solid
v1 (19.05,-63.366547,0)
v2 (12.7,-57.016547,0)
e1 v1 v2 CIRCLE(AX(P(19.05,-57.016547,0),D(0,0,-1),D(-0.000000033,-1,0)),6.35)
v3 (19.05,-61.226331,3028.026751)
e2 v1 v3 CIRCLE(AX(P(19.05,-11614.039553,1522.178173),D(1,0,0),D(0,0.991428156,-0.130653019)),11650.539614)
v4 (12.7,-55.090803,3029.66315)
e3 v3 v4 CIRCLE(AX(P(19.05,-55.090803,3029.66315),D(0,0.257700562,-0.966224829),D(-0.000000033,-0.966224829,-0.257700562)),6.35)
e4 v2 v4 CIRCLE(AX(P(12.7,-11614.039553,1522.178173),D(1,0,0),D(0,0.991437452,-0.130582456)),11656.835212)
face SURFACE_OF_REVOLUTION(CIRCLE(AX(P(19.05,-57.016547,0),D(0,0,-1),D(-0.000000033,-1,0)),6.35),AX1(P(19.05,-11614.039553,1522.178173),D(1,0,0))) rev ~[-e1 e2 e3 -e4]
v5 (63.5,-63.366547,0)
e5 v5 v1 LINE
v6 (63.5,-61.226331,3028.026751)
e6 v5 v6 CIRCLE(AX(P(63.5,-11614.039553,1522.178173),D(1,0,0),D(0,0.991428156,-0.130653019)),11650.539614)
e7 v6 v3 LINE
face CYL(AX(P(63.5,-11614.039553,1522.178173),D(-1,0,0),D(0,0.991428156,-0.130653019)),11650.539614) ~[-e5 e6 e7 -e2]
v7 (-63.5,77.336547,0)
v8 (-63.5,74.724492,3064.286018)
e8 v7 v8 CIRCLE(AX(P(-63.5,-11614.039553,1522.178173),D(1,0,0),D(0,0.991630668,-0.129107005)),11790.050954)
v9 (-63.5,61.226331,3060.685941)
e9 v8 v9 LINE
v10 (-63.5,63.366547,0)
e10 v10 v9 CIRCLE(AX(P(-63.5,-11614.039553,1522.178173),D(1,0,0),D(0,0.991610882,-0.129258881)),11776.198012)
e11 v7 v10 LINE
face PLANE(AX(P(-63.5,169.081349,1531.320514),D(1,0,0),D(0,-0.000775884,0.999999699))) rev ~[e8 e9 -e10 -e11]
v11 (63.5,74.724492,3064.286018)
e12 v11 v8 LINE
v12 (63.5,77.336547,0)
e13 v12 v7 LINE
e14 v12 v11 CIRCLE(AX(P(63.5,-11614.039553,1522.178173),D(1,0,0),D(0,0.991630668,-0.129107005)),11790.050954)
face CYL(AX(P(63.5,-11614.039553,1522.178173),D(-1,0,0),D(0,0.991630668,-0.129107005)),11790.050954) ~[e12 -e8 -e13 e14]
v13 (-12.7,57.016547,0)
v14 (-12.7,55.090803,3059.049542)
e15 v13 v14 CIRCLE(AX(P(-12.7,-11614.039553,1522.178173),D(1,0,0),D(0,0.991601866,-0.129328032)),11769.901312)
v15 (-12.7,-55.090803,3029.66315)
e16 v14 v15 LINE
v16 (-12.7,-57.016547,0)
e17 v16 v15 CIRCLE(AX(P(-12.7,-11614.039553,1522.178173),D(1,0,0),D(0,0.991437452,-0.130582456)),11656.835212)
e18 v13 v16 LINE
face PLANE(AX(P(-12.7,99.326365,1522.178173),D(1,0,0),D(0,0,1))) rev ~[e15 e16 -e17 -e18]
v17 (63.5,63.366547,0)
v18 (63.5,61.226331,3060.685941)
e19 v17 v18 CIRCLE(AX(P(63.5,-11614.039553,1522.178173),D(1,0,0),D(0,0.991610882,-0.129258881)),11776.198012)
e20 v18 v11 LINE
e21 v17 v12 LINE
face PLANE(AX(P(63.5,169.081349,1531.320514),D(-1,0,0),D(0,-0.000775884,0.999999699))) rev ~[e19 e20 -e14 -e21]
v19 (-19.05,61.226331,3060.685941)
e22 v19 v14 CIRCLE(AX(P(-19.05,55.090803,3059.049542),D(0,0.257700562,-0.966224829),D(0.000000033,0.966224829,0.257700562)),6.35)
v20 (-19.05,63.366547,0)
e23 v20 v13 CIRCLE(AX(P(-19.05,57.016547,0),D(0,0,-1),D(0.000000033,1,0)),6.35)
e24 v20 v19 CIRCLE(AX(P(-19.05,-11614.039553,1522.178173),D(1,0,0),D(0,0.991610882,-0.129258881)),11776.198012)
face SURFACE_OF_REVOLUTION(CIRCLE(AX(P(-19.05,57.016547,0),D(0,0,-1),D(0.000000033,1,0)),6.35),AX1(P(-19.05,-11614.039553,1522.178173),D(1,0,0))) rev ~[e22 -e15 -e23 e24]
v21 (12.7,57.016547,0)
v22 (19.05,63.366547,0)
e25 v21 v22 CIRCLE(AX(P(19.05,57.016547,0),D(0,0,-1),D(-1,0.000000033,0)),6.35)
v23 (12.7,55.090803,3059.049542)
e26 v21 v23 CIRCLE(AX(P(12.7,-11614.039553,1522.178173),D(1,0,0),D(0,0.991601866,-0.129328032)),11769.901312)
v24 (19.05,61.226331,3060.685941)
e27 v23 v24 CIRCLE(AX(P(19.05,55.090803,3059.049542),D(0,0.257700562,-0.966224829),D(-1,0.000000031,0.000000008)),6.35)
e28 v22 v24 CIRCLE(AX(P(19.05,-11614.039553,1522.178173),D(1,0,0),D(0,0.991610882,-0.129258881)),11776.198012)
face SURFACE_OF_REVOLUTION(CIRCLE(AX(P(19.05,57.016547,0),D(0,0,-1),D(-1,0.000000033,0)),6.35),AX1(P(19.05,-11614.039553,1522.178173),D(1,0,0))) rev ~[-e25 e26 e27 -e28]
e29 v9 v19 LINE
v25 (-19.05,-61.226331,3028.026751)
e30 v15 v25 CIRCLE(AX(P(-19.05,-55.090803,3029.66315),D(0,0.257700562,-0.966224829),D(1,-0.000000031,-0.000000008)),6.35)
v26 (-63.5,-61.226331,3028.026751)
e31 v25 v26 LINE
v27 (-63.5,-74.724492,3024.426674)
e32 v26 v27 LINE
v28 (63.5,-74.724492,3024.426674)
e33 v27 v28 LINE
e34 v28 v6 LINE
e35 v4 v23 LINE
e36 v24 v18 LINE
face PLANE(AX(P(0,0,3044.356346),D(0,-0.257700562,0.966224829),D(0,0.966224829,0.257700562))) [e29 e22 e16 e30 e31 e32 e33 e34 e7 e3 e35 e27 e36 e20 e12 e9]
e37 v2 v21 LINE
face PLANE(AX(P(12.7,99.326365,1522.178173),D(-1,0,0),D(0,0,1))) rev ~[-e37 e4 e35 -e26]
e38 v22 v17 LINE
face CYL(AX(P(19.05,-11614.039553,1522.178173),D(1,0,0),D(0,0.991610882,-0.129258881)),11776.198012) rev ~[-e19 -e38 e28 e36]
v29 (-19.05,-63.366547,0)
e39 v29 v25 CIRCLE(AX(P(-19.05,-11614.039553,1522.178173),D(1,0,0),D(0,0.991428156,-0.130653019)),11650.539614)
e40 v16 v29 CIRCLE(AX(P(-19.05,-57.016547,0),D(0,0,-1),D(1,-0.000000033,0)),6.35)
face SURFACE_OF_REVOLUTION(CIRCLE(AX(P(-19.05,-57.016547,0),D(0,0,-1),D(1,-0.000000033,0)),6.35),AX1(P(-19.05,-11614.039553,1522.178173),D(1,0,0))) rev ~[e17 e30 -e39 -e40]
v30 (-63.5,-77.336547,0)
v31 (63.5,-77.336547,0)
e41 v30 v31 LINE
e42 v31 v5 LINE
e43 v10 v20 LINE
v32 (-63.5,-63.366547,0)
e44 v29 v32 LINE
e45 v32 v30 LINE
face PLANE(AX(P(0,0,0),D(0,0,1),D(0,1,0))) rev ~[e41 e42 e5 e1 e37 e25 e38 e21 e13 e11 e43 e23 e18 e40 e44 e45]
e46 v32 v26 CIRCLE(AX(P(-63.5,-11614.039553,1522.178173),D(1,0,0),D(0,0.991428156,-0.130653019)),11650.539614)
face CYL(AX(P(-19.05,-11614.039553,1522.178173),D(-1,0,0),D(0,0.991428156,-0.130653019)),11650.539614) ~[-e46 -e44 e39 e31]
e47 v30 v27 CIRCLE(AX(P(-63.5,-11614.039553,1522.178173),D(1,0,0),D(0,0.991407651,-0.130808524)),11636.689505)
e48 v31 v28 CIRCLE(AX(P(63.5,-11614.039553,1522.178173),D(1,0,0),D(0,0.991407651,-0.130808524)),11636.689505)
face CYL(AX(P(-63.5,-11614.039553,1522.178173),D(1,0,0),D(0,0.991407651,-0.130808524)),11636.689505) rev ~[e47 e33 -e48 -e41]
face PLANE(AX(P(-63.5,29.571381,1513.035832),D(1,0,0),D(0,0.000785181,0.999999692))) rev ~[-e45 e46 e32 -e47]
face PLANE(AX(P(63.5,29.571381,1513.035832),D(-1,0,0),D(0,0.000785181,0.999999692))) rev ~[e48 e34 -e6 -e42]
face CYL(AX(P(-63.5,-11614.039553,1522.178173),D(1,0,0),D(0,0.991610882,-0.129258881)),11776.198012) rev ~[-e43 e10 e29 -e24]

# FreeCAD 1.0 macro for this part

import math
import FreeCAD as App
import Part
import Sketcher
from FreeCAD import Vector
Q = App.Units.Quantity

doc = App.newDocument("Part")
body = doc.addObject("PartDesign::Body", "Body")

sketch1 = body.newObject("Sketcher::SketchObject", "Sketch")
sketch1.AttachmentSupport = (doc.getObject("XY_Plane"), [""])
sketch1.MapMode = "FlatFace"
sketch1.addGeometry([
    Part.LineSegment(Vector(-13, 57, 0), Vector(-13, -57, 0)),
    Part.ArcOfCircle(Part.Circle(Vector(-19, -57, 0), Vector(0, 0, 1), 6), math.radians(-90), math.radians(0)),
    Part.LineSegment(Vector(-19, -63, 0), Vector(-64, -63, 0)),
    Part.LineSegment(Vector(-64, -63, 0), Vector(-64, -77, 0)),
    Part.LineSegment(Vector(-64, -77, 0), Vector(64, -77, 0)),
    Part.LineSegment(Vector(64, -77, 0), Vector(64, -63, 0)),
    Part.LineSegment(Vector(64, -63, 0), Vector(19, -63, 0)),
    Part.ArcOfCircle(Part.Circle(Vector(19, -57, 0), Vector(0, 0, 1), 6), math.radians(-180), math.radians(-90)),
    Part.LineSegment(Vector(13, -57, 0), Vector(13, 57, 0)),
    Part.ArcOfCircle(Part.Circle(Vector(19, 57, 0), Vector(0, 0, 1), 6), math.radians(90), math.radians(180)),
    Part.LineSegment(Vector(19, 63, 0), Vector(64, 63, 0)),
    Part.LineSegment(Vector(64, 63, 0), Vector(64, 77, 0)),
    Part.LineSegment(Vector(64, 77, 0), Vector(-64, 77, 0)),
    Part.LineSegment(Vector(-64, 77, 0), Vector(-64, 63, 0)),
    Part.LineSegment(Vector(-64, 63, 0), Vector(-19, 63, 0)),
    Part.ArcOfCircle(Part.Circle(Vector(-19, 57, 0), Vector(0, 0, 1), 6), math.radians(0), math.radians(90)),
], False)
sketch1.addConstraint([
    Sketcher.Constraint("Tangent", 0, 2, 1, 2),
    Sketcher.Constraint("Tangent", 1, 1, 2, 1),
    Sketcher.Constraint("Coincident", 2, 2, 3, 1),
    Sketcher.Constraint("Coincident", 3, 2, 4, 1),
    Sketcher.Constraint("Coincident", 4, 2, 5, 1),
    Sketcher.Constraint("Coincident", 5, 2, 6, 1),
    Sketcher.Constraint("Tangent", 6, 2, 7, 2),
    Sketcher.Constraint("Tangent", 7, 1, 8, 1),
    Sketcher.Constraint("Tangent", 8, 2, 9, 2),
    Sketcher.Constraint("Tangent", 9, 1, 10, 1),
    Sketcher.Constraint("Coincident", 10, 2, 11, 1),
    Sketcher.Constraint("Coincident", 11, 2, 12, 1),
    Sketcher.Constraint("Coincident", 12, 2, 13, 1),
    Sketcher.Constraint("Coincident", 13, 2, 14, 1),
    Sketcher.Constraint("Tangent", 14, 2, 15, 2),
    Sketcher.Constraint("Tangent", 15, 1, 0, 1),
    Sketcher.Constraint("Vertical", 0),
    Sketcher.Constraint("Horizontal", 2),
    Sketcher.Constraint("Vertical", 3),
    Sketcher.Constraint("Horizontal", 4),
    Sketcher.Constraint("Vertical", 5),
    Sketcher.Constraint("Horizontal", 6),
    Sketcher.Constraint("Vertical", 8),
    Sketcher.Constraint("Horizontal", 10),
    Sketcher.Constraint("Vertical", 11),
    Sketcher.Constraint("Horizontal", 12),
    Sketcher.Constraint("Vertical", 13),
    Sketcher.Constraint("Horizontal", 14),
    Sketcher.Constraint("Equal", 1, 7),
    Sketcher.Constraint("Equal", 7, 9),
    Sketcher.Constraint("Equal", 9, 15),
    Sketcher.Constraint("Symmetric", 1, 3, 9, 3, -1, 1),
    Sketcher.Constraint("Symmetric", 3, 2, 11, 2, -1, 1),
    Sketcher.Constraint("Symmetric", 5, 2, 13, 2, -1, 1),
    Sketcher.Constraint("Symmetric", 2, 2, 5, 2, -2),
    Sketcher.Constraint("DistanceX", 4, 1, 4, 2, Q("5 in")),
    Sketcher.Constraint("Radius", 1, Q("0.25 in")),
    Sketcher.Constraint("DistanceX", 2, 2, 0, 2, Q("2 in")),
    Sketcher.Constraint("DistanceY", 3, 2, 3, 1, Q("0.55 in")),
    Sketcher.Constraint("DistanceY", 0, 2, 0, 1, 114.033094),
])

sketch2 = body.newObject("Sketcher::SketchObject", "Sketch001")
sketch2.AttachmentSupport = (doc.getObject("YZ_Plane"), [""])
sketch2.MapMode = "FlatFace"
sketch2.addGeometry(Part.ArcOfCircle(Part.Circle(Vector(-11614, 1522, 0), Vector(0, 0, 1), 11713), math.radians(-7.47), math.radians(7.47)), False)
sketch2.addConstraint([
    Sketcher.Constraint("PointOnObject", 0, 2, -2),
    Sketcher.Constraint("Radius", 0, 11713.365918),
    Sketcher.Constraint("DistanceX", 0, 3, -1, 1, 11614.039553),
    Sketcher.Constraint("DistanceY", -1, 1, 0, 3, 1522.178173),
    Sketcher.Constraint("DistanceX", 0, 3, 0, 1, 11614.039553),
])
doc.recompute()

additivepipe = body.newObject("PartDesign::AdditivePipe", "AdditivePipe")
additivepipe.Profile = sketch1
additivepipe.Spine = (sketch2, ["Edge1"])

doc.recompute()
